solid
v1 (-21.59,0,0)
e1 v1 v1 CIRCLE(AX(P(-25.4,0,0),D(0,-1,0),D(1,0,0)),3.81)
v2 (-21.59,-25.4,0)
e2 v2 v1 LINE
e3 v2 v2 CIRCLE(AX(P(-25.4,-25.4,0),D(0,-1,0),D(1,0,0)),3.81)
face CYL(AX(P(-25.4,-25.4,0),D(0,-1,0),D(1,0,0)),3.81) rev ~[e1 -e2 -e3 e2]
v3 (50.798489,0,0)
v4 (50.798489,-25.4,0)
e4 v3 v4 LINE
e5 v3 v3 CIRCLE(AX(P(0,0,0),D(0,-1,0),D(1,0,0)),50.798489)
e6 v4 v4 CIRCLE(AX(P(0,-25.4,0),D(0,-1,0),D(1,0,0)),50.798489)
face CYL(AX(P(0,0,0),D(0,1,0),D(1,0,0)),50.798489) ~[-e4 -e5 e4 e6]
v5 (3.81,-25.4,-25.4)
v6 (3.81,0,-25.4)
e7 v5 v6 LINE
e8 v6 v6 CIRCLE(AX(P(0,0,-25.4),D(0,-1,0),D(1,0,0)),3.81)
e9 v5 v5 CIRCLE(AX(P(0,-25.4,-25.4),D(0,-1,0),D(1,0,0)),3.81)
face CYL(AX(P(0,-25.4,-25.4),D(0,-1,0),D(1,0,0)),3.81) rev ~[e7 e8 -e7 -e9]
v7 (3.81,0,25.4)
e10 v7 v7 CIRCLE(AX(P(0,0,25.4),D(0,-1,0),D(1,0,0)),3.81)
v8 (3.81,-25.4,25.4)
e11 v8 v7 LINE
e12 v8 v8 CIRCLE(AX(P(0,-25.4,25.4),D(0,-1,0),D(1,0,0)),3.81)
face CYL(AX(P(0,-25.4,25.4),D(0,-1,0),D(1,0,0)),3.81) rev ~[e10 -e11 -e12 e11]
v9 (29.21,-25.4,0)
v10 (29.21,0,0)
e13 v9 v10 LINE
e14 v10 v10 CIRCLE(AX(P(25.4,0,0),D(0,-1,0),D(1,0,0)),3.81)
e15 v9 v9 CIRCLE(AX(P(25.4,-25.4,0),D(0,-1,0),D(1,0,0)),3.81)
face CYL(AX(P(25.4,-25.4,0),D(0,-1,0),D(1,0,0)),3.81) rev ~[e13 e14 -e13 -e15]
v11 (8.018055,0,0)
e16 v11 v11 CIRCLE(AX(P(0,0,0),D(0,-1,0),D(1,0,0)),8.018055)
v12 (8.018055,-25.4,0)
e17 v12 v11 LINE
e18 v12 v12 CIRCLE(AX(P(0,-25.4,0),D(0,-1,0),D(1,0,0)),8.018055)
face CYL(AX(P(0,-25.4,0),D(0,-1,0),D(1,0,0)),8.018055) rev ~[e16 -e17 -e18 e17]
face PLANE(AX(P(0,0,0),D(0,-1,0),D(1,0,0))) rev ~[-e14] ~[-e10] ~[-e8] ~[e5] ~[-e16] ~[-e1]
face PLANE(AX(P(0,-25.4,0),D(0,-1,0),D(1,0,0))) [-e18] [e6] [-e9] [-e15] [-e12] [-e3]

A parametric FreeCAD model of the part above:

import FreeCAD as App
import Part
import Sketcher
from FreeCAD import Vector
Q = App.Units.Quantity

doc = App.newDocument("Part")
body = doc.addObject("PartDesign::Body", "Body")

sketch1 = doc.addObject("Sketcher::SketchObject", "Sketch")
body.addObject(sketch1)
sketch1.AttachmentSupport = (doc.XZ_Plane, [""])
sketch1.MapMode = "FlatFace"
sketch1.addGeometry(Part.Circle(Vector(0, 0, 0), Vector(0, 0, 1), 50.798489), False)
sketch1.addConstraint([
    Sketcher.Constraint("Coincident", 0, 3, -1, 1),
    Sketcher.Constraint("Diameter", 0, Q("101.596978 mm")),
])
pad1 = doc.addObject("PartDesign::Pad", "Pad")
body.addObject(pad1)
pad1.Profile = sketch1
pad1.Length = Q("1 in")

sketch2 = doc.addObject("Sketcher::SketchObject", "Sketch001")
body.addObject(sketch2)
sketch2.AttachmentSupport = (doc.XZ_Plane, [""])
sketch2.MapMode = "FlatFace"
sketch2.AttachmentOffset = App.Placement(Vector(0, 0, 1 * 25.4), App.Rotation())
sketch2.addGeometry(Part.Circle(Vector(0, 0, 0), Vector(0, 0, 1), 8.018055), False)
sketch2.addConstraint([
    Sketcher.Constraint("Coincident", 0, 3, -1, 1),
    Sketcher.Constraint("Diameter", 0, Q("16.03611 mm")),
])
pocket1 = doc.addObject("PartDesign::Pocket", "Pocket")
body.addObject(pocket1)
pocket1.Profile = sketch2
pocket1.Length = Q("3.48 in")

sketch3 = doc.addObject("Sketcher::SketchObject", "Sketch002")
body.addObject(sketch3)
sketch3.AttachmentSupport = (doc.XZ_Plane, [""])
sketch3.MapMode = "FlatFace"
sketch3.AttachmentOffset = App.Placement(Vector(0, 0, 1 * 25.4), App.Rotation())
sketch3.addGeometry([
    Part.Circle(Vector(0, 25.4, 0), Vector(0, 0, 1), 3.81),
    Part.Circle(Vector(-25.4, 0, 0), Vector(0, 0, 1), 3.81),
    Part.Circle(Vector(0, -25.4, 0), Vector(0, 0, 1), 3.81),
    Part.Circle(Vector(25.4, 0, 0), Vector(0, 0, 1), 3.81),
], False)
sketch3.addConstraint([
    Sketcher.Constraint("Equal", 0, 1),
    Sketcher.Constraint("Equal", 1, 2),
    Sketcher.Constraint("Equal", 2, 3),
    Sketcher.Constraint("Symmetric", 0, 3, 2, 3, -1, 1),
    Sketcher.Constraint("Symmetric", 1, 3, 3, 3, -1, 1),
    Sketcher.Constraint("PointOnObject", 0, 3, -2),
    Sketcher.Constraint("PointOnObject", 1, 3, -1),
    Sketcher.Constraint("Diameter", 0, Q("0.3 in")),
    Sketcher.Constraint("DistanceY", -1, 1, 0, 3, Q("1 in")),
    Sketcher.Constraint("DistanceX", 1, 3, -1, 1, Q("1 in")),
])
pocket2 = doc.addObject("PartDesign::Pocket", "Pocket001")
body.addObject(pocket2)
pocket2.Profile = sketch3
pocket2.Length = Q("1 in")

doc.recompute()
